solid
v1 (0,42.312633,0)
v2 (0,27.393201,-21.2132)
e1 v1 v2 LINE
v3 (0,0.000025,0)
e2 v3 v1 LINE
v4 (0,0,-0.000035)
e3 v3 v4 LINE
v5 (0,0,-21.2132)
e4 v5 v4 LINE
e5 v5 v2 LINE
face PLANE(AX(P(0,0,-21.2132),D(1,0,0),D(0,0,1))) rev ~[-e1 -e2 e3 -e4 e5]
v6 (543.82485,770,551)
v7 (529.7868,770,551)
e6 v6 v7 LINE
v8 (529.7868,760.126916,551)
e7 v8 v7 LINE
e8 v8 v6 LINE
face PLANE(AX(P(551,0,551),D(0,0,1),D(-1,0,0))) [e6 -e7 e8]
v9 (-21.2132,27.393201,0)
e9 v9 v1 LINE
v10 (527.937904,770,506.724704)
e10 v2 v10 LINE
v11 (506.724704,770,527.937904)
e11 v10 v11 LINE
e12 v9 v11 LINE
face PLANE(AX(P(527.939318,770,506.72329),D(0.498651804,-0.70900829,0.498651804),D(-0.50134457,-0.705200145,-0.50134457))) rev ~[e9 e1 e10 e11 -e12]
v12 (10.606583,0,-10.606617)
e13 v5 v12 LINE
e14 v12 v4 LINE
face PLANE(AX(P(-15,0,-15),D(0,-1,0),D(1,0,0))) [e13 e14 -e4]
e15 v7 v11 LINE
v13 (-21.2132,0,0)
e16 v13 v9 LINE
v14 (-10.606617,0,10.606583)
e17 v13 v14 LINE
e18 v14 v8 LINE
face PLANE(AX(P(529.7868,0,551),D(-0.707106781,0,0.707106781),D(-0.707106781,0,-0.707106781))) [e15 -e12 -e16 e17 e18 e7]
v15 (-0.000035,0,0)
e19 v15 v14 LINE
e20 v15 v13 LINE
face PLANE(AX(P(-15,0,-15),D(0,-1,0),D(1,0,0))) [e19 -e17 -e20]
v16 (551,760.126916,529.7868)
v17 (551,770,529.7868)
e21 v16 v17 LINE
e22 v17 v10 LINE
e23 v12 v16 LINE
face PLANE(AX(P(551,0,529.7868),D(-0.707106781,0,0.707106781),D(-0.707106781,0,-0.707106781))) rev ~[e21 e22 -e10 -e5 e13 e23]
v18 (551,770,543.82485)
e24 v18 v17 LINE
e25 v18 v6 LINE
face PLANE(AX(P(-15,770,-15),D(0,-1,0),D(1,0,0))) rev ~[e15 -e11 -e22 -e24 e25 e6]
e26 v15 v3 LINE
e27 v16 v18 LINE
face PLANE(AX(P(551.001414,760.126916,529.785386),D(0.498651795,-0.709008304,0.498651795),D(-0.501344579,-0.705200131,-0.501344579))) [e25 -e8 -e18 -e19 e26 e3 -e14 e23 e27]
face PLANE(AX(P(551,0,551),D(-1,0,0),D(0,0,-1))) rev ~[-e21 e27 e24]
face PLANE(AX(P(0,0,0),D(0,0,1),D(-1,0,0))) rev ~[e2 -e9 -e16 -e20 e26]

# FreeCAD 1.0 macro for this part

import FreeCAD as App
import Part
import Sketcher

V = App.Vector
Q = App.Units.Quantity

doc = App.newDocument("Part")
params = doc.addObject("Spreadsheet::Sheet", "Params")
for row, (alias, value) in enumerate([
    ("pad1_length", "770 mm"),
    ("pocket1_length", "770 mm"),
    ("sketch3_height", "770 mm"),
    ("pocket2_length", "770 mm"),
], start=1):
    params.set(f"A{row}", alias)
    params.set(f"B{row}", "=" + value)
    params.setAlias(f"B{row}", alias)

body = doc.addObject("PartDesign::Body", "Body")

# Sketch on XZ plane
sketch1 = doc.addObject("Sketcher::SketchObject", "Sketch")
body.addObject(sketch1)
sketch1.AttachmentSupport = (doc.XZ_Plane, [""])
sketch1.MapMode = "FlatFace"
sketch1.addGeometry(Part.LineSegment(V(529.7868, 551, 0), V(-30, -8.7868, 0)), False)
sketch1.addGeometry(Part.LineSegment(V(-30, -8.7868, 0), V(-30, -30, 0)), False)
sketch1.addGeometry(Part.LineSegment(V(-30, -30, 0), V(-8.7868, -30, 0)), False)
sketch1.addGeometry(Part.LineSegment(V(-8.7868, -30, 0), V(551, 529.7868, 0)), False)
sketch1.addGeometry(Part.LineSegment(V(551, 529.7868, 0), V(551, 551, 0)), False)
sketch1.addGeometry(Part.LineSegment(V(551, 551, 0), V(529.7868, 551, 0)), False)
sketch1.addConstraint(Sketcher.Constraint("Coincident", 0, 2, 1, 1))
sketch1.addConstraint(Sketcher.Constraint("Coincident", 1, 2, 2, 1))
sketch1.addConstraint(Sketcher.Constraint("Coincident", 2, 2, 3, 1))
sketch1.addConstraint(Sketcher.Constraint("Coincident", 3, 2, 4, 1))
sketch1.addConstraint(Sketcher.Constraint("Coincident", 4, 2, 5, 1))
sketch1.addConstraint(Sketcher.Constraint("Coincident", 5, 2, 0, 1))
sketch1.addConstraint(Sketcher.Constraint("Vertical", 1))
sketch1.addConstraint(Sketcher.Constraint("Horizontal", 2))
sketch1.addConstraint(Sketcher.Constraint("Vertical", 4))
sketch1.addConstraint(Sketcher.Constraint("Horizontal", 5))
sketch1.addConstraint(Sketcher.Constraint("Parallel", 0, 3))
sketch1.addConstraint(Sketcher.Constraint("Equal", 2, 5))
sketch1.addConstraint(Sketcher.Constraint("Equal", 5, 1))
sketch1.addConstraint(Sketcher.Constraint("DistanceX", 0, 2, -1, 1, Q("30 mm")))
sketch1.addConstraint(Sketcher.Constraint("DistanceY", 1, 2, -1, 1, Q("30 mm")))
sketch1.addConstraint(Sketcher.Constraint("Angle", 0, Q("-135 deg")))
sketch1.addConstraint(Sketcher.Constraint("DistanceX", -1, 1, 3, 2, Q("551 mm")))
sketch1.addConstraint(Sketcher.Constraint("Distance", 0, Q("791.658 mm")))
pad1 = doc.addObject("PartDesign::Pad", "Pad")
body.addObject(pad1)
pad1.Profile = sketch1
pad1.setExpression("Length", "Params.pad1_length")
pad1.Reversed = True

# Sketch on XZ plane
sketch2 = doc.addObject("Sketcher::SketchObject", "Sketch001")
body.addObject(sketch2)
sketch2.AttachmentSupport = (doc.XZ_Plane, [""])
sketch2.MapMode = "FlatFace"
sketch2.addGeometry(Part.LineSegment(V(-8.7868, -30, 0), V(0, -21.2132, 0)), False)
sketch2.addGeometry(Part.LineSegment(V(0, -21.2132, 0), V(0, 0, 0)), False)
sketch2.addGeometry(Part.LineSegment(V(0, 0, 0), V(-21.2132, 0, 0)), False)
sketch2.addGeometry(Part.LineSegment(V(-21.2132, 0, 0), V(-30, -8.7868, 0)), False)
sketch2.addGeometry(Part.LineSegment(V(-30, -8.7868, 0), V(-30, -30, 0)), False)
sketch2.addGeometry(Part.LineSegment(V(-30, -30, 0), V(-8.7868, -30, 0)), False)
sketch2.addConstraint(Sketcher.Constraint("Coincident", 0, 2, 1, 1))
sketch2.addConstraint(Sketcher.Constraint("Coincident", 1, 2, 2, 1))
sketch2.addConstraint(Sketcher.Constraint("Coincident", 2, 2, 3, 1))
sketch2.addConstraint(Sketcher.Constraint("Coincident", 3, 2, 4, 1))
sketch2.addConstraint(Sketcher.Constraint("Coincident", 4, 2, 5, 1))
sketch2.addConstraint(Sketcher.Constraint("Coincident", 5, 2, 0, 1))
sketch2.addConstraint(Sketcher.Constraint("Vertical", 1))
sketch2.addConstraint(Sketcher.Constraint("Horizontal", 2))
sketch2.addConstraint(Sketcher.Constraint("Vertical", 4))
sketch2.addConstraint(Sketcher.Constraint("Horizontal", 5))
sketch2.addConstraint(Sketcher.Constraint("Coincident", 1, 2, -1, 1))
sketch2.addConstraint(Sketcher.Constraint("Parallel", 0, 3))
sketch2.addConstraint(Sketcher.Constraint("Equal", 2, 5))
sketch2.addConstraint(Sketcher.Constraint("Equal", 5, 1))
sketch2.addConstraint(Sketcher.Constraint("DistanceX", 3, 2, -1, 1, Q("30 mm")))
sketch2.addConstraint(Sketcher.Constraint("DistanceY", 4, 2, -1, 1, Q("30 mm")))
sketch2.addConstraint(Sketcher.Constraint("DistanceX", 2, 2, 2, 1, Q("21.2132 mm")))
pocket1 = doc.addObject("PartDesign::Pocket", "Pocket")
body.addObject(pocket1)
pocket1.Profile = sketch2
pocket1.setExpression("Length", "Params.pocket1_length")

# Sketch on an angled plane
sketch3 = doc.addObject("Sketcher::SketchObject", "Sketch002")
body.addObject(sketch3)
sketch3.Placement = App.Placement(V(551, 0, 529.7868), App.Rotation(V(-0.707106781, 0, -0.707106781), V(0, 0.999999999, 0), V(0.707106781, 0, -0.707106781), "ZXY"))
sketch3.addGeometry(Part.LineSegment(V(764.2317, 0, 0), V(-9.9264, 769.999999, 0)), False)
sketch3.addGeometry(Part.LineSegment(V(-9.9264, 769.999999, 0), V(-15, 769.999999, 0)), False)
sketch3.addGeometry(Part.LineSegment(V(-15, 769.999999, 0), V(-15, 0, 0)), False)
sketch3.addGeometry(Part.LineSegment(V(-15, 0, 0), V(764.2317, 0, 0)), False)
sketch3.addGeometry(Part.LineSegment(V(32.614729, 769.999999, 0), V(779.2317, 27.393174, 0)), False)
sketch3.addGeometry(Part.LineSegment(V(779.2317, 27.393174, 0), V(779.2317, 769.999999, 0)), False)
sketch3.addGeometry(Part.LineSegment(V(779.2317, 769.999999, 0), V(32.614729, 769.999999, 0)), False)
sketch3.addConstraint(Sketcher.Constraint("Coincident", 0, 2, 1, 1))
sketch3.addConstraint(Sketcher.Constraint("Coincident", 1, 2, 2, 1))
sketch3.addConstraint(Sketcher.Constraint("Coincident", 2, 2, 3, 1))
sketch3.addConstraint(Sketcher.Constraint("Coincident", 3, 2, 0, 1))
sketch3.addConstraint(Sketcher.Constraint("Coincident", 4, 2, 5, 1))
sketch3.addConstraint(Sketcher.Constraint("Coincident", 5, 2, 6, 1))
sketch3.addConstraint(Sketcher.Constraint("Coincident", 6, 2, 4, 1))
sketch3.addConstraint(Sketcher.Constraint("Horizontal", 1))
sketch3.addConstraint(Sketcher.Constraint("Vertical", 2))
sketch3.addConstraint(Sketcher.Constraint("Horizontal", 3))
sketch3.addConstraint(Sketcher.Constraint("Vertical", 5))
sketch3.addConstraint(Sketcher.Constraint("Horizontal", 6))
sketch3.addConstraint(Sketcher.Constraint("PointOnObject", 2, 2, -1))
sketch3.addConstraint(Sketcher.Constraint("Parallel", 0, 4))
sketch3.addConstraint(Sketcher.Constraint("Horizontal", 1, 2, 5, 2))
sketch3.addConstraint(Sketcher.Constraint("DistanceY", 2, 2, 2, 1, Q("770 mm")))
sketch3.addConstraint(Sketcher.Constraint("DistanceX", 1, 2, -1, 1, Q("15 mm")))
sketch3.addConstraint(Sketcher.Constraint("DistanceX", 3, 2, 4, 2, Q("15 mm")))
sketch3.addConstraint(Sketcher.Constraint("DistanceX", 6, 2, 6, 1, Q("746.617 mm")))
sketch3.addConstraint(Sketcher.Constraint("Distance", 4, Q("1053.044 mm")))
sketch3.addConstraint(Sketcher.Constraint("DistanceX", 1, 2, 1, 1, Q("5.0736 mm")))
sketch3.setExpression("Constraints[15]", "Params.sketch3_height")
pocket2 = doc.addObject("PartDesign::Pocket", "Pocket001")
body.addObject(pocket2)
pocket2.Profile = sketch3
pocket2.setExpression("Length", "Params.pocket2_length")

doc.recompute()
